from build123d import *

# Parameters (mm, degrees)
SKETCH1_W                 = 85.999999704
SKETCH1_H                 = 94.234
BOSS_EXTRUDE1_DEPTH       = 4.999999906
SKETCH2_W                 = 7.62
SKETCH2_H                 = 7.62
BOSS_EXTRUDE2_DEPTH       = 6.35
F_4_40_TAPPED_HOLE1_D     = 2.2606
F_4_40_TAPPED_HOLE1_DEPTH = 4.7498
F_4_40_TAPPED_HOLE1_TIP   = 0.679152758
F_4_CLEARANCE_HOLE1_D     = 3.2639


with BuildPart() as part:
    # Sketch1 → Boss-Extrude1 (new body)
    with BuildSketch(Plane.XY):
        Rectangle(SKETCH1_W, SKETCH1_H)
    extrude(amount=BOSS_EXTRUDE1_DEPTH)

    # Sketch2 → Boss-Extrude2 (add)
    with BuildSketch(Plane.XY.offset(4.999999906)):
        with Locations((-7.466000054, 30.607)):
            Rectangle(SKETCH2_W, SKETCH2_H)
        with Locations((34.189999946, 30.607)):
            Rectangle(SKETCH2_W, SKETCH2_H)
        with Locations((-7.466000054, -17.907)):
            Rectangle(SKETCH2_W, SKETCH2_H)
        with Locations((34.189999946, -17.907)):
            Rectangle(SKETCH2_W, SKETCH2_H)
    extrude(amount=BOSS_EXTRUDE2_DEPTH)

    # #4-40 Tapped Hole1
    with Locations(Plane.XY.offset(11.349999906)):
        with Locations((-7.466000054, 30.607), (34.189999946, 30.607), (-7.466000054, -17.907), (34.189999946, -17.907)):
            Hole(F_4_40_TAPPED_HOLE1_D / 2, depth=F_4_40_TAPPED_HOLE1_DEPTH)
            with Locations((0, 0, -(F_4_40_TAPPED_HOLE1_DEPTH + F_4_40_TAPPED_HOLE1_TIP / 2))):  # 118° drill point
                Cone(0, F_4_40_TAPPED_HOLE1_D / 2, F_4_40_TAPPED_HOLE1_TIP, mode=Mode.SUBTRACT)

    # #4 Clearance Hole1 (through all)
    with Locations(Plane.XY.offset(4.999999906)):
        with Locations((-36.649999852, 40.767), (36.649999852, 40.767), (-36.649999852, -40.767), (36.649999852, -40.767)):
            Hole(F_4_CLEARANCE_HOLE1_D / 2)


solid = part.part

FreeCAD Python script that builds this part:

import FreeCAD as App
import Part
import Sketcher
from FreeCAD import Vector
Q = App.Units.Quantity


def add_polygon(sketch, points):
    """Adds a closed chain of lines whose ends are joined by coincident constraints."""
    first, n = sketch.GeometryCount, len(points)
    for a, b in zip(points, points[1:] + points[:1]):
        sketch.addGeometry(Part.LineSegment(App.Vector(*a, 0), App.Vector(*b, 0)), False)
    for i in range(n):
        sketch.addConstraint(Sketcher.Constraint("Coincident", first + i, 2, first + (i + 1) % n, 1))

doc = App.newDocument("Part")
body = doc.addObject("PartDesign::Body", "Body")

# Sketch on XY plane
sketch1 = body.newObject("Sketcher::SketchObject", "Sketch")
sketch1.AttachmentSupport = (doc.getObject("XY_Plane"), [""])
sketch1.MapMode = "FlatFace"
add_polygon(sketch1, [(-43, 47), (-43, -47), (43, -47), (43, 47)])  # lines 0-3
sketch1.addConstraint(Sketcher.Constraint("Vertical", 0))
sketch1.addConstraint(Sketcher.Constraint("Horizontal", 1))
sketch1.addConstraint(Sketcher.Constraint("Vertical", 2))
sketch1.addConstraint(Sketcher.Constraint("Horizontal", 3))
sketch1.addConstraint(Sketcher.Constraint("Symmetric", 0, 2, 2, 2, -1, 1))
sketch1.addConstraint(Sketcher.Constraint("DistanceY", 0, 2, 0, 1, Q("3.71 in")))
sketch1.addConstraint(Sketcher.Constraint("DistanceX", 1, 1, 1, 2, 86.0))
pad1 = body.newObject("PartDesign::Pad", "Pad")
pad1.Profile = sketch1
pad1.Length = 5

# Sketch on XY plane
sketch2 = body.newObject("Sketcher::SketchObject", "Sketch001")
sketch2.AttachmentSupport = (doc.getObject("XY_Plane"), [""])
sketch2.MapMode = "FlatFace"
sketch2.AttachmentOffset = App.Placement(Vector(0, 0, 5), App.Rotation())
add_polygon(sketch2, [(-11, 34), (-11, 27), (-4, 27), (-4, 34)])  # lines 0-3
add_polygon(sketch2, [(30, 34), (30, 27), (38, 27), (38, 34)])  # lines 4-7
add_polygon(sketch2, [(-11, -14), (-11, -22), (-4, -22), (-4, -14)])  # lines 8-11
add_polygon(sketch2, [(30, -14), (30, -22), (38, -22), (38, -14)])  # lines 12-15
sketch2.addConstraint(Sketcher.Constraint("Vertical", 0))
sketch2.addConstraint(Sketcher.Constraint("Horizontal", 1))
sketch2.addConstraint(Sketcher.Constraint("Vertical", 2))
sketch2.addConstraint(Sketcher.Constraint("Horizontal", 3))
sketch2.addConstraint(Sketcher.Constraint("Vertical", 4))
sketch2.addConstraint(Sketcher.Constraint("Horizontal", 5))
sketch2.addConstraint(Sketcher.Constraint("Vertical", 6))
sketch2.addConstraint(Sketcher.Constraint("Horizontal", 7))
sketch2.addConstraint(Sketcher.Constraint("Vertical", 8))
sketch2.addConstraint(Sketcher.Constraint("Horizontal", 9))
sketch2.addConstraint(Sketcher.Constraint("Vertical", 10))
sketch2.addConstraint(Sketcher.Constraint("Horizontal", 11))
sketch2.addConstraint(Sketcher.Constraint("Vertical", 12))
sketch2.addConstraint(Sketcher.Constraint("Horizontal", 13))
sketch2.addConstraint(Sketcher.Constraint("Vertical", 14))
sketch2.addConstraint(Sketcher.Constraint("Horizontal", 15))
sketch2.addConstraint(Sketcher.Constraint("Horizontal", 1, 2, 4, 2))
sketch2.addConstraint(Sketcher.Constraint("Horizontal", 3, 2, 6, 2))
sketch2.addConstraint(Sketcher.Constraint("Horizontal", 9, 2, 12, 2))
sketch2.addConstraint(Sketcher.Constraint("Horizontal", 11, 2, 14, 2))
sketch2.addConstraint(Sketcher.Constraint("Vertical", 3, 2, 8, 2))
sketch2.addConstraint(Sketcher.Constraint("Vertical", 2, 2, 9, 2))
sketch2.addConstraint(Sketcher.Constraint("Vertical", 7, 2, 12, 2))
sketch2.addConstraint(Sketcher.Constraint("Vertical", 6, 2, 13, 2))
sketch2.addConstraint(Sketcher.Constraint("Equal", 3, 5))
sketch2.addConstraint(Sketcher.Constraint("Equal", 15, 0))
sketch2.addConstraint(Sketcher.Constraint("Equal", 6, 8))
sketch2.addConstraint(Sketcher.Constraint("DistanceX", 1, 1, 1, 2, Q("0.3 in")))
sketch2.addConstraint(Sketcher.Constraint("DistanceX", 1, 2, 4, 2, Q("1.34 in")))
sketch2.addConstraint(Sketcher.Constraint("DistanceY", 8, 2, 0, 2, Q("1.91 in")))
sketch2.addConstraint(Sketcher.Constraint("DistanceY", -1, 1, 0, 2, Q("1.055 in")))
sketch2.addConstraint(Sketcher.Constraint("DistanceX", 0, 2, -1, 1, 11.276))
pad2 = body.newObject("PartDesign::Pad", "Pad001")
pad2.Profile = sketch2
pad2.Length = Q("0.25 in")

# Sketch on XY plane
sketch3 = body.newObject("Sketcher::SketchObject", "Sketch002")
sketch3.AttachmentSupport = (doc.getObject("XY_Plane"), [""])
sketch3.MapMode = "FlatFace"
sketch3.AttachmentOffset = App.Placement(Vector(0, 0, 11.35), App.Rotation())
sketch3.addGeometry(Part.Circle(Vector(-7.5, 30.6, 0), Vector(0, 0, 1), 1.1), False)
sketch3.addGeometry(Part.Circle(Vector(34.2, 30.6, 0), Vector(0, 0, 1), 1.1), False)
sketch3.addGeometry(Part.Circle(Vector(-7.5, -17.9, 0), Vector(0, 0, 1), 1.1), False)
sketch3.addGeometry(Part.Circle(Vector(34.2, -17.9, 0), Vector(0, 0, 1), 1.1), False)
sketch3.addConstraint(Sketcher.Constraint("Equal", 0, 1))
sketch3.addConstraint(Sketcher.Constraint("Equal", 1, 2))
sketch3.addConstraint(Sketcher.Constraint("Equal", 2, 3))
sketch3.addConstraint(Sketcher.Constraint("Horizontal", 0, 3, 1, 3))
sketch3.addConstraint(Sketcher.Constraint("Horizontal", 2, 3, 3, 3))
sketch3.addConstraint(Sketcher.Constraint("Vertical", 0, 3, 2, 3))
sketch3.addConstraint(Sketcher.Constraint("Vertical", 1, 3, 3, 3))
sketch3.addConstraint(Sketcher.Constraint("Diameter", 0, Q("0.089 in")))
sketch3.addConstraint(Sketcher.Constraint("DistanceX", 0, 3, 1, 3, Q("1.64 in")))
sketch3.addConstraint(Sketcher.Constraint("DistanceY", 2, 3, 0, 3, Q("1.91 in")))
sketch3.addConstraint(Sketcher.Constraint("DistanceY", -1, 1, 0, 3, Q("1.205 in")))
sketch3.addConstraint(Sketcher.Constraint("DistanceX", 0, 3, -1, 1, 7.466))
doc.recompute()
hole = body.newObject("PartDesign::Hole", "Hole")
hole.Profile = sketch3
hole.ThreadType = "None"
hole.Diameter = Q("0.089 in")
hole.DepthType = "Dimension"
hole.Depth = Q("0.187 in")
hole.DrillPoint = "Angled"
hole.DrillPointAngle = 118

# Sketch on XY plane
sketch4 = body.newObject("Sketcher::SketchObject", "Sketch003")
sketch4.AttachmentSupport = (doc.getObject("XY_Plane"), [""])
sketch4.MapMode = "FlatFace"
sketch4.AttachmentOffset = App.Placement(Vector(0, 0, 5), App.Rotation())
sketch4.addGeometry(Part.Circle(Vector(-36.6, 40.8, 0), Vector(0, 0, 1), 1.6), False)
sketch4.addGeometry(Part.Circle(Vector(36.6, 40.8, 0), Vector(0, 0, 1), 1.6), False)
sketch4.addGeometry(Part.Circle(Vector(-36.6, -40.8, 0), Vector(0, 0, 1), 1.6), False)
sketch4.addGeometry(Part.Circle(Vector(36.6, -40.8, 0), Vector(0, 0, 1), 1.6), False)
sketch4.addConstraint(Sketcher.Constraint("Equal", 0, 1))
sketch4.addConstraint(Sketcher.Constraint("Equal", 1, 2))
sketch4.addConstraint(Sketcher.Constraint("Equal", 2, 3))
sketch4.addConstraint(Sketcher.Constraint("Symmetric", 1, 3, 2, 3, -1, 1))
sketch4.addConstraint(Sketcher.Constraint("Symmetric", 0, 3, 3, 3, -1, 1))
sketch4.addConstraint(Sketcher.Constraint("Symmetric", 0, 3, 1, 3, -2))
sketch4.addConstraint(Sketcher.Constraint("Diameter", 0, Q("0.1285 in")))
sketch4.addConstraint(Sketcher.Constraint("DistanceY", 2, 3, 0, 3, Q("3.21 in")))
sketch4.addConstraint(Sketcher.Constraint("DistanceX", 0, 3, -1, 1, 36.65))
doc.recompute()
hole2 = body.newObject("PartDesign::Hole", "Hole001")
hole2.Profile = sketch4
hole2.ThreadType = "None"
hole2.Diameter = Q("0.1285 in")
hole2.DepthType = "ThroughAll"

doc.recompute()
